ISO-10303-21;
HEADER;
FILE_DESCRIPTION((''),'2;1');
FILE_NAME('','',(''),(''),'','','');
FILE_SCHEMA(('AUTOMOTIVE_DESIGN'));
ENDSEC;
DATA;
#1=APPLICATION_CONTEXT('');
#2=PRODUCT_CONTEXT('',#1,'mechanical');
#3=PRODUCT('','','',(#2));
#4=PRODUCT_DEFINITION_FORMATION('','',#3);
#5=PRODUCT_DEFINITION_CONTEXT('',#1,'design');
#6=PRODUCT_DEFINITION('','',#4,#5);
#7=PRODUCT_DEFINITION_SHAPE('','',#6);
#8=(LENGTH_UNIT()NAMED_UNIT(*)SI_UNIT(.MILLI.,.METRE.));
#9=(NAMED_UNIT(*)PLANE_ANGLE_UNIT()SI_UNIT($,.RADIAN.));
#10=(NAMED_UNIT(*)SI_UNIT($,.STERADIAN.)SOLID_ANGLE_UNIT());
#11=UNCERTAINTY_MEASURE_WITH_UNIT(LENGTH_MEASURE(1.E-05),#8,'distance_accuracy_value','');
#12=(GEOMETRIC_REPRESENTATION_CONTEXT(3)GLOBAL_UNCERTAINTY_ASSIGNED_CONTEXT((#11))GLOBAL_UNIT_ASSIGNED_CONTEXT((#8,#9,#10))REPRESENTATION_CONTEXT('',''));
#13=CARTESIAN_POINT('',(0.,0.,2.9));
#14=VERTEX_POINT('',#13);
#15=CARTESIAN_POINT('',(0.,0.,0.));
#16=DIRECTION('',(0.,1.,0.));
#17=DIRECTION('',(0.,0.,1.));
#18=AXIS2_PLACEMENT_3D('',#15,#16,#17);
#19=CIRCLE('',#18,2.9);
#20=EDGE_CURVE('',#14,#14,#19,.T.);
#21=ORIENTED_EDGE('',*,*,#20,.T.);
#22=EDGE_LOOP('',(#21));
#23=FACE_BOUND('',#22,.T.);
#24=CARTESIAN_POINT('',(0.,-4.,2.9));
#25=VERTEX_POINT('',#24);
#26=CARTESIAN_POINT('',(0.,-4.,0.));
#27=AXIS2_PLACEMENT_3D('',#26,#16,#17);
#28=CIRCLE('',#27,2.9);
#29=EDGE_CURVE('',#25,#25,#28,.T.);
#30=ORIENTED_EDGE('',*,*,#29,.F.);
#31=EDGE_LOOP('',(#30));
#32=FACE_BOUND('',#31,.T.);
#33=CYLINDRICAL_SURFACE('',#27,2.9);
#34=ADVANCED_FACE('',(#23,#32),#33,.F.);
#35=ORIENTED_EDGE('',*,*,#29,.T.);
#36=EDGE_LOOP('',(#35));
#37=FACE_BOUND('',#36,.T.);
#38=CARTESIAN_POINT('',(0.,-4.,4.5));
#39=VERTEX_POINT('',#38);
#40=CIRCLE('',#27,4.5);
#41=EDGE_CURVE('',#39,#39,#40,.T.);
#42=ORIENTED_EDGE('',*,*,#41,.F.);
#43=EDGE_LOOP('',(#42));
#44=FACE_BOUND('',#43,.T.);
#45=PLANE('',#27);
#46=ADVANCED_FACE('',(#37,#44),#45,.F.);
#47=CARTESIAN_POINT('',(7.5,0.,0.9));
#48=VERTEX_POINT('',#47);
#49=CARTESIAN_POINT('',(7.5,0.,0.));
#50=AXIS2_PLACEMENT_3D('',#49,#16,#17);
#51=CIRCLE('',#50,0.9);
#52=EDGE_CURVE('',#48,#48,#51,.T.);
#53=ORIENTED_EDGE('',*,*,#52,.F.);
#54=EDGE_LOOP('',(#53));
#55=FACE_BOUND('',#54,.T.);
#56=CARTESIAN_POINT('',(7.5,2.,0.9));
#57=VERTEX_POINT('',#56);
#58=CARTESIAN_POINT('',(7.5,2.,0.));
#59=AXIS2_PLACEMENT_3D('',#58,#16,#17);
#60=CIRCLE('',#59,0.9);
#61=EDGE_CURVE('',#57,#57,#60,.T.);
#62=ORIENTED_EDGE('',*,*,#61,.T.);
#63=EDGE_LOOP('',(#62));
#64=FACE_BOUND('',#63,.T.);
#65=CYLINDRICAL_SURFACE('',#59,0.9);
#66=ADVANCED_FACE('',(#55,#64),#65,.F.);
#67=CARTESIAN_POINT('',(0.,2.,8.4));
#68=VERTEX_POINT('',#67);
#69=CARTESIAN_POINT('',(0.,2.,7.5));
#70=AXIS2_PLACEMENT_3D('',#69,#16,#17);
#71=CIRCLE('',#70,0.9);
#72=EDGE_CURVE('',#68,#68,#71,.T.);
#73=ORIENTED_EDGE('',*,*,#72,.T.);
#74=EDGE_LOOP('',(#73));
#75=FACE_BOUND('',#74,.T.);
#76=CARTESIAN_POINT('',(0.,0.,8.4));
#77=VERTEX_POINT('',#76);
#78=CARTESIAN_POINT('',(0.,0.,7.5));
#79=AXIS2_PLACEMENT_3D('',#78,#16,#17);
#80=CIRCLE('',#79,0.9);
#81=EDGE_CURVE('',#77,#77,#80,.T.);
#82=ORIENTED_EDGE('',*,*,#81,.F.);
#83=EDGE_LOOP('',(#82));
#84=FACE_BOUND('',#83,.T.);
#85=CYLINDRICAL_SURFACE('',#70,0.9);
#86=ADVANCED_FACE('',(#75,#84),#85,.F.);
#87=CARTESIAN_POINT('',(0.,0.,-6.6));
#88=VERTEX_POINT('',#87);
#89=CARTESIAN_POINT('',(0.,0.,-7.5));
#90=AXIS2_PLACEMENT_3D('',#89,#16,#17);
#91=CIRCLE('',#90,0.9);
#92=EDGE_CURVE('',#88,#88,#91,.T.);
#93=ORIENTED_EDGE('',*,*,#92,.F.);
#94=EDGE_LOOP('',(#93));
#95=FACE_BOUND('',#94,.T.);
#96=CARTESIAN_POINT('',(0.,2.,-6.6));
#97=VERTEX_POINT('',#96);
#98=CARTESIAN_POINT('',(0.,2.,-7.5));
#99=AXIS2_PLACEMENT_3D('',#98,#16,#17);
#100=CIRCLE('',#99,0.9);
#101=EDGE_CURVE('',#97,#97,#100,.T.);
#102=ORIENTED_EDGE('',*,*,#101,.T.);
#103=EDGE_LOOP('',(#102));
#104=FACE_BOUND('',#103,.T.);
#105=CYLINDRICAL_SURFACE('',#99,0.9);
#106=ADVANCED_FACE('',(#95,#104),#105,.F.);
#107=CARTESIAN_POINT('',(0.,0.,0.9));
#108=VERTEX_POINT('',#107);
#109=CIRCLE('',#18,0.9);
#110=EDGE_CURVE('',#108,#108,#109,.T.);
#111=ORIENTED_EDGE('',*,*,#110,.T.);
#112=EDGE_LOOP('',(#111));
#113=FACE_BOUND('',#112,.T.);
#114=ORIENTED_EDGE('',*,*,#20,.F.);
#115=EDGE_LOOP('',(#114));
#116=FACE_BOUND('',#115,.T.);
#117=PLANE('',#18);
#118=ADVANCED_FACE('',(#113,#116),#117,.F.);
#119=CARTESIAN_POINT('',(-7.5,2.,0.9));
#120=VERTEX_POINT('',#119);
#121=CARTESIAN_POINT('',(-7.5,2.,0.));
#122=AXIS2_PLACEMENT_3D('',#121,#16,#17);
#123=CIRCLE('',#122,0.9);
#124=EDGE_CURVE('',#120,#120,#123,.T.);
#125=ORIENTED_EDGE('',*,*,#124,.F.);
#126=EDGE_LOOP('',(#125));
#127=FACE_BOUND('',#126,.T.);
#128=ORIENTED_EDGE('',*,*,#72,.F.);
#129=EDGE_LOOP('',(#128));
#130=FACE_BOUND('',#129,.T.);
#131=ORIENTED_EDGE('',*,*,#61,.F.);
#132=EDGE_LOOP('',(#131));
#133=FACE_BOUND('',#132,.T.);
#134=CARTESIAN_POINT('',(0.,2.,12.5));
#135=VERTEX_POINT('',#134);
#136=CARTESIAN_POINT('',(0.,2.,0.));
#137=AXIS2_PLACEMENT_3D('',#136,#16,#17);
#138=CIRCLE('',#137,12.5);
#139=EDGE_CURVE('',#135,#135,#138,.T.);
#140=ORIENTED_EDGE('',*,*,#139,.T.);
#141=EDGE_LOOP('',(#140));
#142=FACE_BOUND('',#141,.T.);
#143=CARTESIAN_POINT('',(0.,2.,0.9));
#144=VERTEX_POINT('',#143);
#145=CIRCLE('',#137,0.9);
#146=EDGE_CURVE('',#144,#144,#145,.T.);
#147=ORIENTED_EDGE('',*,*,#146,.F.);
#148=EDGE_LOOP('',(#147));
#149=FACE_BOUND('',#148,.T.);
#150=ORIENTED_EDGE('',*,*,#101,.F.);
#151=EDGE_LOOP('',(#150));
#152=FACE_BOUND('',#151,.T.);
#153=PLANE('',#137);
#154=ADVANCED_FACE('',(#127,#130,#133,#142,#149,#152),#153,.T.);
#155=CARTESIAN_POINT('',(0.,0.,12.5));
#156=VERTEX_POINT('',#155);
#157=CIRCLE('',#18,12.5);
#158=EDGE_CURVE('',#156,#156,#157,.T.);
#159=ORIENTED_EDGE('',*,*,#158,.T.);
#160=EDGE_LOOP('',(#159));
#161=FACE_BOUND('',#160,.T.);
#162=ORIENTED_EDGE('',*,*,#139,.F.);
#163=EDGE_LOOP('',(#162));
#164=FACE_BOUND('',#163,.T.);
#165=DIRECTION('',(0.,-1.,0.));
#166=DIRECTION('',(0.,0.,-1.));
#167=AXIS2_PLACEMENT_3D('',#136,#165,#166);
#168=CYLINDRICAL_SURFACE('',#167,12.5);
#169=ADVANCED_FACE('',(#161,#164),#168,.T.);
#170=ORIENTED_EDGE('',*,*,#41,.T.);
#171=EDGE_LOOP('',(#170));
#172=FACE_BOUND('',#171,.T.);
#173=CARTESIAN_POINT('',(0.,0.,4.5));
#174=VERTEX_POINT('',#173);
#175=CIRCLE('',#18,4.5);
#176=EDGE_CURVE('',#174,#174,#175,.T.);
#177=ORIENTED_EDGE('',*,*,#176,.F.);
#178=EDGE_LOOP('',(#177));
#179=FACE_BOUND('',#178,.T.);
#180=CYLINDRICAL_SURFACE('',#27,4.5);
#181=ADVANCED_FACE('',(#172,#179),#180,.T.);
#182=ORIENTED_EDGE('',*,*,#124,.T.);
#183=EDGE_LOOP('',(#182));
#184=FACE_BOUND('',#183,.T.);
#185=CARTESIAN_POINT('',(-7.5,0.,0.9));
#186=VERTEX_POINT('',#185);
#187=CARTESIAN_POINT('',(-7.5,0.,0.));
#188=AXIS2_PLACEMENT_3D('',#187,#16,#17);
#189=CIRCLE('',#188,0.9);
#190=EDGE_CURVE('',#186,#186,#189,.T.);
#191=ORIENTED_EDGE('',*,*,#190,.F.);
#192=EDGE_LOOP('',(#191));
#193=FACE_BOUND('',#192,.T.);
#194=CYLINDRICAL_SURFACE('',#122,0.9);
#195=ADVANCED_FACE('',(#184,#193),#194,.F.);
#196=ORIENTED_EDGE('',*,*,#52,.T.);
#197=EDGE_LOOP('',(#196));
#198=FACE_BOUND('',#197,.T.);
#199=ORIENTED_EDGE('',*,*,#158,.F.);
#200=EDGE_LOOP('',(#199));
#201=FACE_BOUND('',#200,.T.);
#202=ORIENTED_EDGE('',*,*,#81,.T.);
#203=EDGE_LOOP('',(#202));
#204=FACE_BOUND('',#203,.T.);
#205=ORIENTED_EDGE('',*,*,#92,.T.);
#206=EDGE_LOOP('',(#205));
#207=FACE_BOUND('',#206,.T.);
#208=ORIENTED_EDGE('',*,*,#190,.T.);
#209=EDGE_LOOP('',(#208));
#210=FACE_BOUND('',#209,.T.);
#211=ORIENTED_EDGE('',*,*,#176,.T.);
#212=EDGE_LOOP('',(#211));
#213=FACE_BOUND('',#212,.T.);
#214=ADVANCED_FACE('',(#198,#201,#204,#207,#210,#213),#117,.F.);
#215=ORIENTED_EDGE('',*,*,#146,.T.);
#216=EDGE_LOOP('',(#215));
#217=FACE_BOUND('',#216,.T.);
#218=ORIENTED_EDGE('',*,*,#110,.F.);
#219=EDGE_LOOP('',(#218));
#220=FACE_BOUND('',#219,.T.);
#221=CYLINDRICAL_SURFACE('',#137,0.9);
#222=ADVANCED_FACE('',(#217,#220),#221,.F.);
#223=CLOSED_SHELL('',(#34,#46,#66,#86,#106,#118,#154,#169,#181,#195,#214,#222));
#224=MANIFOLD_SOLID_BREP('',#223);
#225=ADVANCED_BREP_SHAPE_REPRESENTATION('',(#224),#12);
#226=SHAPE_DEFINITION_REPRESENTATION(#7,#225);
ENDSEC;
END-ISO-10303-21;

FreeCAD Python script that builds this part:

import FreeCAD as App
import Part
import Sketcher

V = App.Vector
Q = App.Units.Quantity

doc = App.newDocument("Part")
body = doc.addObject("PartDesign::Body", "Body")

sketch1 = body.newObject("Sketcher::SketchObject", "Sketch")
sketch1.AttachmentSupport = (doc.getObject("XZ_Plane"), [""])
sketch1.MapMode = "FlatFace"
sketch1.addGeometry(Part.Circle(V(0, 0, 0), V(0, 0, 1), 12), False)
sketch1.addConstraint(Sketcher.Constraint("Coincident", 0, 3, -1, 1))
sketch1.addConstraint(Sketcher.Constraint("Diameter", 0, Q("25 mm")))
pad1 = body.newObject("PartDesign::Pad", "Pad")
pad1.Profile = sketch1
pad1.Length = 2
pad1.Reversed = True

sketch2 = body.newObject("Sketcher::SketchObject", "Sketch001")
sketch2.AttachmentSupport = (doc.getObject("XZ_Plane"), [""])
sketch2.MapMode = "FlatFace"
sketch2.addGeometry(Part.Circle(V(0, 0, 0), V(0, 0, 1), 4.5), False)
sketch2.addGeometry(Part.Circle(V(0, 0, 0), V(0, 0, 1), 2.9), False)
sketch2.addConstraint(Sketcher.Constraint("Coincident", 0, 3, -1, 1))
sketch2.addConstraint(Sketcher.Constraint("Coincident", 1, 3, -1, 1))
sketch2.addConstraint(Sketcher.Constraint("Diameter", 0, Q("9 mm")))
sketch2.addConstraint(Sketcher.Constraint("Diameter", 1, Q("5.8 mm")))
pad2 = body.newObject("PartDesign::Pad", "Pad001")
pad2.Profile = sketch2
pad2.Length = 4

sketch3 = body.newObject("Sketcher::SketchObject", "Sketch002")
sketch3.AttachmentSupport = (doc.getObject("XZ_Plane"), [""])
sketch3.MapMode = "FlatFace"
sketch3.AttachmentOffset = App.Placement(V(0, 0, -2), App.Rotation())
sketch3.addGeometry(Part.Circle(V(0, 0, 0), V(0, 0, 1), 0.9), False)
sketch3.addGeometry(Part.Circle(V(0, -7.5, 0), V(0, 0, 1), 0.9), False)
sketch3.addGeometry(Part.Circle(V(7.5, 0, 0), V(0, 0, 1), 0.9), False)
sketch3.addGeometry(Part.Circle(V(0, 7.5, 0), V(0, 0, 1), 0.9), False)
sketch3.addGeometry(Part.Circle(V(-7.5, 0, 0), V(0, 0, 1), 0.9), False)
sketch3.addConstraint(Sketcher.Constraint("Coincident", 0, 3, -1, 1))
sketch3.addConstraint(Sketcher.Constraint("Equal", 0, 1))
sketch3.addConstraint(Sketcher.Constraint("Equal", 1, 2))
sketch3.addConstraint(Sketcher.Constraint("Equal", 2, 3))
sketch3.addConstraint(Sketcher.Constraint("Equal", 3, 4))
sketch3.addConstraint(Sketcher.Constraint("Symmetric", 1, 3, 3, 3, -1, 1))
sketch3.addConstraint(Sketcher.Constraint("Symmetric", 2, 3, 4, 3, -1, 1))
sketch3.addConstraint(Sketcher.Constraint("PointOnObject", 1, 3, -2))
sketch3.addConstraint(Sketcher.Constraint("PointOnObject", 2, 3, -1))
sketch3.addConstraint(Sketcher.Constraint("Diameter", 0, Q("1.8 mm")))
sketch3.addConstraint(Sketcher.Constraint("DistanceY", 1, 3, 3, 3, Q("15 mm")))
sketch3.addConstraint(Sketcher.Constraint("DistanceX", 4, 3, 2, 3, Q("15 mm")))
doc.recompute()
hole = body.newObject("PartDesign::Hole", "Hole")
hole.Profile = sketch3
hole.ThreadType = "None"
hole.Diameter = 1.8
hole.DepthType = "ThroughAll"
hole.Reversed = True

doc.recompute()
